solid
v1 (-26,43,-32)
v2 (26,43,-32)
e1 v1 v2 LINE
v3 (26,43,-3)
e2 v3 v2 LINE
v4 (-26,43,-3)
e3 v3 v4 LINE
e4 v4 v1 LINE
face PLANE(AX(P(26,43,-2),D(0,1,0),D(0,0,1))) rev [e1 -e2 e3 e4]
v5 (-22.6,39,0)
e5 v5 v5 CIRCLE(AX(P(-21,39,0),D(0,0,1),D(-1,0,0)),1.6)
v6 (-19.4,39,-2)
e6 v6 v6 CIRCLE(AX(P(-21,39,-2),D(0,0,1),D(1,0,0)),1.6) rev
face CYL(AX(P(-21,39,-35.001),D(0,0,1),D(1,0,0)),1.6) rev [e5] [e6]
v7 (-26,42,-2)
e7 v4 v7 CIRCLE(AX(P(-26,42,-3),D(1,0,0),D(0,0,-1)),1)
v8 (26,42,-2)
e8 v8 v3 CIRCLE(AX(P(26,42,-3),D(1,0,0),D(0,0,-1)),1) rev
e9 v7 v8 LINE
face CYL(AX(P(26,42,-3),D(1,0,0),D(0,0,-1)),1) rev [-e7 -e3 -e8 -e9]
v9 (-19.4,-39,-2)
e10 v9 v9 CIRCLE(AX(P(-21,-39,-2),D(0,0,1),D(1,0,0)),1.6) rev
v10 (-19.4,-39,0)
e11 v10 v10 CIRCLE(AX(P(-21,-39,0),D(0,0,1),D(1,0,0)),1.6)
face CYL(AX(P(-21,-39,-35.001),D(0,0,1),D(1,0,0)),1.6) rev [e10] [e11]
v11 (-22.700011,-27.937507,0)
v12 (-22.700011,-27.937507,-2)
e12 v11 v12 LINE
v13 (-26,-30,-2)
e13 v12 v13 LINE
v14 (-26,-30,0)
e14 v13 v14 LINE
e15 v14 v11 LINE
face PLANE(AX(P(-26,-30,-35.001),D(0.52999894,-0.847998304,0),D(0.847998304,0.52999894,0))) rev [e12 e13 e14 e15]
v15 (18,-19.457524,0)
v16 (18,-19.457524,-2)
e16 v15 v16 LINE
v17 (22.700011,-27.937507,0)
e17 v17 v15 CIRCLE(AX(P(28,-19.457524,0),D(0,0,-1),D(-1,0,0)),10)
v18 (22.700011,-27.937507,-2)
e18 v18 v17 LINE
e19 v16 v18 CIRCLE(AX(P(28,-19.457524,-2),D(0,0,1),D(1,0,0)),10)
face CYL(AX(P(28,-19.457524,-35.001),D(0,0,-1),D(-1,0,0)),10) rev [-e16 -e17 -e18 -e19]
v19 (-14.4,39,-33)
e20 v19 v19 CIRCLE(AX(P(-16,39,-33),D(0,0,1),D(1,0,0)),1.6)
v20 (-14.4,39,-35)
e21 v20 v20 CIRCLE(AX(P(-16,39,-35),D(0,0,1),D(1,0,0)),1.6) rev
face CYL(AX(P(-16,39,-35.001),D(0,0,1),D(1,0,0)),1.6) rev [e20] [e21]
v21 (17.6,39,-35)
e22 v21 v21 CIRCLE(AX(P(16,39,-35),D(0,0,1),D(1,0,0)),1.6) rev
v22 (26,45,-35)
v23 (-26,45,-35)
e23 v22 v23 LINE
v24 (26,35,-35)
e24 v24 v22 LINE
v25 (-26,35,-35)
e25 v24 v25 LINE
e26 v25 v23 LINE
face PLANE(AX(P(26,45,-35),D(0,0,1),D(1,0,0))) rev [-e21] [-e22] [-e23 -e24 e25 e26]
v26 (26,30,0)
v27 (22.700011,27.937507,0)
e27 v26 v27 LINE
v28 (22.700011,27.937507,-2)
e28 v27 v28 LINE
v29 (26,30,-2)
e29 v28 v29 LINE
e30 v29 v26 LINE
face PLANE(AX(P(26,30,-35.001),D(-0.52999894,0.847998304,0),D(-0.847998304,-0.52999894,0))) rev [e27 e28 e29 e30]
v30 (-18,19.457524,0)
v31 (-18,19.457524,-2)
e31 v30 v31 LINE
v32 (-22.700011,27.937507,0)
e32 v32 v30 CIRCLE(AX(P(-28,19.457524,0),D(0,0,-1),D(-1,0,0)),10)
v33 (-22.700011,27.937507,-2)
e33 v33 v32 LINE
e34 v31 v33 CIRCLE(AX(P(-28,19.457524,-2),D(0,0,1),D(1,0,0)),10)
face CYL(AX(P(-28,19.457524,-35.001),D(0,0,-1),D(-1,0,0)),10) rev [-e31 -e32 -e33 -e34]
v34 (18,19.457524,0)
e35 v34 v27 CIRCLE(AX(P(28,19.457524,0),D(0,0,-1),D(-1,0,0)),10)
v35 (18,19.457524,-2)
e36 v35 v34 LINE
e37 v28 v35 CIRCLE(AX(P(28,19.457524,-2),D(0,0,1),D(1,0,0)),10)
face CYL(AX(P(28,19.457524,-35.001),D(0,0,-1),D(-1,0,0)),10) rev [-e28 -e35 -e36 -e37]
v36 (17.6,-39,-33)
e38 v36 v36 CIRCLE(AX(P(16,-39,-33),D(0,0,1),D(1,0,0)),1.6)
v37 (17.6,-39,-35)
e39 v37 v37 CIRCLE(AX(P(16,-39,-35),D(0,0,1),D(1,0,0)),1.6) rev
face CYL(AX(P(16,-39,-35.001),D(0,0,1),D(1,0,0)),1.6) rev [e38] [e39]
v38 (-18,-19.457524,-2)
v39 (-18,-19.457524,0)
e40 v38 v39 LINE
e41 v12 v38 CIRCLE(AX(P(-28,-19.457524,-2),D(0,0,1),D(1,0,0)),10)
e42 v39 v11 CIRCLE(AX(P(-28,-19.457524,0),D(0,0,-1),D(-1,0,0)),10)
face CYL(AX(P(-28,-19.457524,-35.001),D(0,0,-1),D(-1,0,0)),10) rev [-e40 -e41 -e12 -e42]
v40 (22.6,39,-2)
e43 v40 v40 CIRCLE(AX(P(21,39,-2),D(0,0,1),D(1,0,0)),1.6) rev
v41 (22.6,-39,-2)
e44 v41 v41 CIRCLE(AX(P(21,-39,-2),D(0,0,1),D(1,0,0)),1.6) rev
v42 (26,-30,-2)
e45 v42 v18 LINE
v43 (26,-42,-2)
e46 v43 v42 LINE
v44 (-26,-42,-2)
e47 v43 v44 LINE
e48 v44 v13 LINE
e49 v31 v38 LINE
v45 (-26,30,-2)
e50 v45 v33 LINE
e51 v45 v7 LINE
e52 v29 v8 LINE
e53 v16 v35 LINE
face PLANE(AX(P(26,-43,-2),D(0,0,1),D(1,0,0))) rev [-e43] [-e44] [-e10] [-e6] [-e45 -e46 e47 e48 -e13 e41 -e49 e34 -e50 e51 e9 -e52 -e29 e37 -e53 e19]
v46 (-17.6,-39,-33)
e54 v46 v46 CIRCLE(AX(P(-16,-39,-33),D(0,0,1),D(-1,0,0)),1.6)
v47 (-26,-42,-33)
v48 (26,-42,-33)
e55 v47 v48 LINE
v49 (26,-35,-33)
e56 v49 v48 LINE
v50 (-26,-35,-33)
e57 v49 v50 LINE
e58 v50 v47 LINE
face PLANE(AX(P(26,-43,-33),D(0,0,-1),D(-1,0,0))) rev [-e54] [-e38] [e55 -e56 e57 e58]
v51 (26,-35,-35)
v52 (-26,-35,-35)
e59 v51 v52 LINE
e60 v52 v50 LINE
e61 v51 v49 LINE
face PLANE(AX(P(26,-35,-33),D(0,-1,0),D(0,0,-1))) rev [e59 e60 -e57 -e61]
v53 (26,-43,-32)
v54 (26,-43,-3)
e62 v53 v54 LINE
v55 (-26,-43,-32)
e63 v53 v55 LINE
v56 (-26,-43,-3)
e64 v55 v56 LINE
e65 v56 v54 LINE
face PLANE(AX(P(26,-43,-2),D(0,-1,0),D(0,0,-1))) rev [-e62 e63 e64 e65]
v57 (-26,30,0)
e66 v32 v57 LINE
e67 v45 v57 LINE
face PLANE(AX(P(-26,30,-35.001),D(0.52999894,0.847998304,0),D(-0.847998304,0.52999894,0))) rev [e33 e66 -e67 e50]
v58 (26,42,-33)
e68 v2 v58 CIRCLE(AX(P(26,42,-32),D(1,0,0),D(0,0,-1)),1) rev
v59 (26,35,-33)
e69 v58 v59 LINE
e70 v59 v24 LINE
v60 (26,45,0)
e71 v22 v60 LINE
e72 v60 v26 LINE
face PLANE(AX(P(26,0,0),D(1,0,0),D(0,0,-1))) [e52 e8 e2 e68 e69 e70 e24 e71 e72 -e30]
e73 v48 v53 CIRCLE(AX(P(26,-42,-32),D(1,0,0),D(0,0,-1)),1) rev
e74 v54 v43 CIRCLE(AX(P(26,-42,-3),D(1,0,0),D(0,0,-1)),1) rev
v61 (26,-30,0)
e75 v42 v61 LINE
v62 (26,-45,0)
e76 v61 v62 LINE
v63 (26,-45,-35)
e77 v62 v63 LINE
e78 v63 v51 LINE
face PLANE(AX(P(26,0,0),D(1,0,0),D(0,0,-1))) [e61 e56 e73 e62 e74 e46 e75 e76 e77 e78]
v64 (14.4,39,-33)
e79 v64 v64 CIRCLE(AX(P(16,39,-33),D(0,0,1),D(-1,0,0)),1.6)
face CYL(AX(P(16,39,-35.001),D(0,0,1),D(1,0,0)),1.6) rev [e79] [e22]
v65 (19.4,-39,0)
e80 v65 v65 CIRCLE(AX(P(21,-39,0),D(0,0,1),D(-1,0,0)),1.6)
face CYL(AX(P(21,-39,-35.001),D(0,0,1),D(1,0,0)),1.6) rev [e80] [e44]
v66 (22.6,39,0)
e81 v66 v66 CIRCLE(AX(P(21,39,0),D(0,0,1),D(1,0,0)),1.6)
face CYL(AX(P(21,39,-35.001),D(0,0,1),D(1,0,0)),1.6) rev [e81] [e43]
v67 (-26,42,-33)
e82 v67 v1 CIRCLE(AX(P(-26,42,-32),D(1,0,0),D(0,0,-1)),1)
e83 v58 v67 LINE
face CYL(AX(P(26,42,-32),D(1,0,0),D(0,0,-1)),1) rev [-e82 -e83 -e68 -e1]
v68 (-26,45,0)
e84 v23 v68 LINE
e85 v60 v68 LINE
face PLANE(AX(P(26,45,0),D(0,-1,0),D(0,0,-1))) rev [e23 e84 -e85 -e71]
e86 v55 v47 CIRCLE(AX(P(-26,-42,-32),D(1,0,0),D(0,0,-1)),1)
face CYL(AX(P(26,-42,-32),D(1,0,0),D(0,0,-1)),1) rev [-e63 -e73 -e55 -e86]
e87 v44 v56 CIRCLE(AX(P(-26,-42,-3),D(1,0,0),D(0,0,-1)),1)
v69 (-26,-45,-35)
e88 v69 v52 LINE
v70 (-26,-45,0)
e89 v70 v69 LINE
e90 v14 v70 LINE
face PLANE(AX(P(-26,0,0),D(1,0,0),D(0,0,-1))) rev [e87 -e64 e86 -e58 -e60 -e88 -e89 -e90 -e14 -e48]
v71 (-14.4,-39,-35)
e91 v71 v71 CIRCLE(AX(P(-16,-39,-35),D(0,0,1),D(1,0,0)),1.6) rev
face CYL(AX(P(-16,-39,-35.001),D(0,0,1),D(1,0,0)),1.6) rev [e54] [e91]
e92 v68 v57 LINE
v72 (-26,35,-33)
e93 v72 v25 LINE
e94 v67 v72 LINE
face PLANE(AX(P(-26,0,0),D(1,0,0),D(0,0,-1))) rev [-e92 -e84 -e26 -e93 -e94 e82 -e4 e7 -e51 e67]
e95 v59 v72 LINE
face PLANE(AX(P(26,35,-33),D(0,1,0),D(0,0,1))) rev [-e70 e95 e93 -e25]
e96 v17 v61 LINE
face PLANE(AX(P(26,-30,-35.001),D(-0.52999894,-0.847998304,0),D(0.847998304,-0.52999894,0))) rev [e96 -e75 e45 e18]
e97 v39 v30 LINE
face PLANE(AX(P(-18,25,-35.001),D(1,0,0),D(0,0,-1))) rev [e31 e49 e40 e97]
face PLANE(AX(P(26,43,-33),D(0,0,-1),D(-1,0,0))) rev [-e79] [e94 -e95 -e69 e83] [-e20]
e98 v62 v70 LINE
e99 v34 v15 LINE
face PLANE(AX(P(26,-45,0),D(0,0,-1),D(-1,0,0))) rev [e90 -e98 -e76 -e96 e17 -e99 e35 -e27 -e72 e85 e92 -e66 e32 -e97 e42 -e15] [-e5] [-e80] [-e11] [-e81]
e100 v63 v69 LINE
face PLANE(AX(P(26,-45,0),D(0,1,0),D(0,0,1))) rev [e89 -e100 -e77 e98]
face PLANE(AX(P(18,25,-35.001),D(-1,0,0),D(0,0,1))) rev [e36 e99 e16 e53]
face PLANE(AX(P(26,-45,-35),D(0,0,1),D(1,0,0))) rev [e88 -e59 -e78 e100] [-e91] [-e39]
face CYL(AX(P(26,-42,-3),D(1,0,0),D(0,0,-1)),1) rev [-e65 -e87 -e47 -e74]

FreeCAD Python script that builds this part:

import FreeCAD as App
import Part
import Sketcher
from FreeCAD import Vector
Q = App.Units.Quantity


def edges_at(feature, points):
    """Names of the edges that pass closest to the given points."""
    edges = feature.Shape.Edges
    near = lambda p: min(range(len(edges)), key=lambda i: edges[i].distToShape(Part.Vertex(*p))[0])
    return sorted({f"Edge{near(p) + 1}" for p in points})


def add_polygon(sketch, points):
    """Adds a closed chain of lines whose ends are joined by coincident constraints."""
    first, n = sketch.GeometryCount, len(points)
    for a, b in zip(points, points[1:] + points[:1]):
        sketch.addGeometry(Part.LineSegment(App.Vector(*a, 0), App.Vector(*b, 0)), False)
    for i in range(n):
        sketch.addConstraint(Sketcher.Constraint("Coincident", first + i, 2, first + (i + 1) % n, 1))

doc = App.newDocument("Part")
body = doc.addObject("PartDesign::Body", "Body")

# Sketch on YZ plane
sketch1 = body.newObject("Sketcher::SketchObject", "Sketch")
sketch1.AttachmentSupport = (doc.getObject("YZ_Plane"), [""])
sketch1.MapMode = "FlatFace"
add_polygon(sketch1, [(45, 0), (-45, 0), (-45, -35), (-35, -35), (-35, -33), (-43, -33), (-43, -2), (43, -2), (43, -33), (35, -33), (35, -35), (45, -35)])  # lines 0-11
sketch1.addConstraint([
    Sketcher.Constraint("Horizontal", 0),
    Sketcher.Constraint("Vertical", 1),
    Sketcher.Constraint("Horizontal", 2),
    Sketcher.Constraint("Vertical", 3),
    Sketcher.Constraint("Horizontal", 4),
    Sketcher.Constraint("Vertical", 5),
    Sketcher.Constraint("Horizontal", 6),
    Sketcher.Constraint("Vertical", 7),
    Sketcher.Constraint("Horizontal", 8),
    Sketcher.Constraint("Vertical", 9),
    Sketcher.Constraint("Horizontal", 10),
    Sketcher.Constraint("Vertical", 11),
    Sketcher.Constraint("Symmetric", 0, 2, 11, 2, -1, 1),
    Sketcher.Constraint("Symmetric", 4, 2, 7, 2, -2),
    Sketcher.Constraint("Symmetric", 2, 2, 9, 2, -2),
    Sketcher.Constraint("DistanceX", 0, 2, 0, 1, Q("90 mm")),
    Sketcher.Constraint("DistanceX", 2, 1, 2, 2, Q("10 mm")),
    Sketcher.Constraint("DistanceX", 4, 2, 4, 1, Q("8 mm")),
    Sketcher.Constraint("DistanceY", 1, 2, 1, 1, Q("35 mm")),
    Sketcher.Constraint("DistanceY", 3, 1, 3, 2, Q("2 mm")),
    Sketcher.Constraint("DistanceY", 5, 1, 5, 2, Q("31 mm")),
])
pad1 = body.newObject("PartDesign::Pad", "Pad")
pad1.Profile = sketch1
pad1.Length = 52
pad1.Midplane = True

# Sketch on XY plane
sketch2 = body.newObject("Sketcher::SketchObject", "Sketch001")
sketch2.AttachmentSupport = (doc.getObject("XY_Plane"), [""])
sketch2.MapMode = "FlatFace"
sketch2.addGeometry(Part.Circle(Vector(-21, -39, 0), Vector(0, 0, 1), 1.6), False)
sketch2.addConstraint([
    Sketcher.Constraint("Diameter", 0, Q("3.2 mm")),
    Sketcher.Constraint("DistanceX", 0, 3, -1, 1, Q("21 mm")),
    Sketcher.Constraint("DistanceY", 0, 3, -1, 1, Q("39 mm")),
])
pocket1 = body.newObject("PartDesign::Pocket", "Pocket")
pocket1.Profile = sketch2
pocket1.Type = "UpToFirst"

# Sketch on XY plane
sketch3 = body.newObject("Sketcher::SketchObject", "Sketch002")
sketch3.AttachmentSupport = (doc.getObject("XY_Plane"), [""])
sketch3.MapMode = "FlatFace"
sketch3.addGeometry(Part.Circle(Vector(-21, 39, 0), Vector(0, 0, 1), 1.6), False)
sketch3.addConstraint([
    Sketcher.Constraint("Diameter", 0, Q("3.2 mm")),
    Sketcher.Constraint("DistanceX", 0, 3, -1, 1, Q("21 mm")),
    Sketcher.Constraint("DistanceY", -1, 1, 0, 3, Q("39 mm")),
])
pocket2 = body.newObject("PartDesign::Pocket", "Pocket001")
pocket2.Profile = sketch3
pocket2.Type = "UpToFirst"

# Sketch on XY plane
sketch4 = body.newObject("Sketcher::SketchObject", "Sketch003")
sketch4.AttachmentSupport = (doc.getObject("XY_Plane"), [""])
sketch4.MapMode = "FlatFace"
sketch4.addGeometry(Part.Circle(Vector(21, 39, 0), Vector(0, 0, 1), 1.6), False)
sketch4.addConstraint([
    Sketcher.Constraint("Diameter", 0, Q("3.2 mm")),
    Sketcher.Constraint("DistanceX", -1, 1, 0, 3, Q("21 mm")),
    Sketcher.Constraint("DistanceY", -1, 1, 0, 3, Q("39 mm")),
])
pocket3 = body.newObject("PartDesign::Pocket", "Pocket002")
pocket3.Profile = sketch4
pocket3.Type = "UpToFirst"

# Sketch on XY plane
sketch5 = body.newObject("Sketcher::SketchObject", "Sketch004")
sketch5.AttachmentSupport = (doc.getObject("XY_Plane"), [""])
sketch5.MapMode = "FlatFace"
sketch5.addGeometry(Part.Circle(Vector(21, -39, 0), Vector(0, 0, 1), 1.6), False)
sketch5.addConstraint([
    Sketcher.Constraint("Diameter", 0, Q("3.2 mm")),
    Sketcher.Constraint("DistanceX", -1, 1, 0, 3, Q("21 mm")),
    Sketcher.Constraint("DistanceY", 0, 3, -1, 1, Q("39 mm")),
])
pocket4 = body.newObject("PartDesign::Pocket", "Pocket003")
pocket4.Profile = sketch5
pocket4.Type = "UpToFirst"

# Sketch on XY plane
sketch6 = body.newObject("Sketcher::SketchObject", "Sketch005")
sketch6.AttachmentSupport = (doc.getObject("XY_Plane"), [""])
sketch6.MapMode = "FlatFace"
sketch6.AttachmentOffset = App.Placement(Vector(0, 0, -33), App.Rotation())
sketch6.addGeometry(Part.Circle(Vector(16, -39, 0), Vector(0, 0, 1), 1.6), False)
sketch6.addConstraint([
    Sketcher.Constraint("Diameter", 0, Q("3.2 mm")),
    Sketcher.Constraint("DistanceX", -1, 1, 0, 3, Q("16 mm")),
    Sketcher.Constraint("DistanceY", 0, 3, -1, 1, Q("39 mm")),
])
pocket5 = body.newObject("PartDesign::Pocket", "Pocket004")
pocket5.Profile = sketch6
pocket5.Type = "UpToFirst"

# Sketch on XY plane
sketch7 = body.newObject("Sketcher::SketchObject", "Sketch006")
sketch7.AttachmentSupport = (doc.getObject("XY_Plane"), [""])
sketch7.MapMode = "FlatFace"
sketch7.AttachmentOffset = App.Placement(Vector(0, 0, -33), App.Rotation())
sketch7.addGeometry(Part.Circle(Vector(-16, -39, 0), Vector(0, 0, 1), 1.6), False)
sketch7.addConstraint([
    Sketcher.Constraint("Diameter", 0, Q("3.2 mm")),
    Sketcher.Constraint("DistanceX", 0, 3, -1, 1, Q("16 mm")),
    Sketcher.Constraint("DistanceY", 0, 3, -1, 1, Q("39 mm")),
])
pocket6 = body.newObject("PartDesign::Pocket", "Pocket005")
pocket6.Profile = sketch7
pocket6.Type = "UpToFirst"

# Sketch on XY plane
sketch8 = body.newObject("Sketcher::SketchObject", "Sketch007")
sketch8.AttachmentSupport = (doc.getObject("XY_Plane"), [""])
sketch8.MapMode = "FlatFace"
sketch8.AttachmentOffset = App.Placement(Vector(0, 0, -33), App.Rotation())
sketch8.addGeometry(Part.Circle(Vector(-16, 39, 0), Vector(0, 0, 1), 1.6), False)
sketch8.addConstraint([
    Sketcher.Constraint("Diameter", 0, Q("3.2 mm")),
    Sketcher.Constraint("DistanceX", 0, 3, -1, 1, Q("16 mm")),
    Sketcher.Constraint("DistanceY", -1, 1, 0, 3, Q("39 mm")),
])
pocket7 = body.newObject("PartDesign::Pocket", "Pocket006")
pocket7.Profile = sketch8
pocket7.Type = "UpToFirst"

# Sketch on XY plane
sketch9 = body.newObject("Sketcher::SketchObject", "Sketch008")
sketch9.AttachmentSupport = (doc.getObject("XY_Plane"), [""])
sketch9.MapMode = "FlatFace"
sketch9.AttachmentOffset = App.Placement(Vector(0, 0, -33), App.Rotation())
sketch9.addGeometry(Part.Circle(Vector(16, 39, 0), Vector(0, 0, 1), 1.6), False)
sketch9.addConstraint([
    Sketcher.Constraint("Diameter", 0, Q("3.2 mm")),
    Sketcher.Constraint("DistanceX", -1, 1, 0, 3, Q("16 mm")),
    Sketcher.Constraint("DistanceY", -1, 1, 0, 3, Q("39 mm")),
])
pocket8 = body.newObject("PartDesign::Pocket", "Pocket007")
pocket8.Profile = sketch9
pocket8.Type = "UpToFirst"
doc.recompute()

fillet = body.newObject("PartDesign::Fillet", "Fillet")
fillet.Base = (pocket8, edges_at(pocket8, [
    (0, 43, -33),
    (0, 43, -2),
    (0, -43, -2),
    (0, -43, -33),
]))
fillet.Radius = 1

# Sketch on XY plane
sketch10 = body.newObject("Sketcher::SketchObject", "Sketch009")
sketch10.AttachmentSupport = (doc.getObject("XY_Plane"), [""])
sketch10.MapMode = "FlatFace"
add_polygon(sketch10, [(-18, 25), (-26, 30), (-26, -30), (-18, -25)])  # lines 0-3
sketch10.addConstraint([
    Sketcher.Constraint("Vertical", 1),
    Sketcher.Constraint("Vertical", 3),
    Sketcher.Constraint("Equal", 0, 2),
    Sketcher.Constraint("DistanceY", 1, 2, 1, 1, Q("60 mm")),
    Sketcher.Constraint("DistanceY", 3, 1, 3, 2, Q("50 mm")),
    Sketcher.Constraint("DistanceX", 0, 2, -1, 1, Q("26 mm")),
    Sketcher.Constraint("DistanceY", -1, 1, 0, 2, Q("30 mm")),
    Sketcher.Constraint("DistanceX", 2, 2, -1, 1, Q("18 mm")),
])
pocket9 = body.newObject("PartDesign::Pocket", "Pocket008")
pocket9.Profile = sketch10
pocket9.Type = "UpToFirst"

# Sketch on XY plane
sketch11 = body.newObject("Sketcher::SketchObject", "Sketch010")
sketch11.AttachmentSupport = (doc.getObject("XY_Plane"), [""])
sketch11.MapMode = "FlatFace"
add_polygon(sketch11, [(18, -25), (26, -30), (26, 30), (18, 25)])  # lines 0-3
sketch11.addConstraint([
    Sketcher.Constraint("Vertical", 1),
    Sketcher.Constraint("Vertical", 3),
    Sketcher.Constraint("Equal", 0, 2),
    Sketcher.Constraint("DistanceY", 1, 1, 1, 2, Q("60 mm")),
    Sketcher.Constraint("DistanceY", 3, 2, 3, 1, Q("50 mm")),
    Sketcher.Constraint("DistanceX", -1, 1, 0, 2, Q("26 mm")),
    Sketcher.Constraint("DistanceY", 0, 2, -1, 1, Q("30 mm")),
    Sketcher.Constraint("DistanceX", -1, 1, 2, 2, Q("18 mm")),
])
pocket10 = body.newObject("PartDesign::Pocket", "Pocket009")
pocket10.Profile = sketch11
pocket10.Type = "UpToFirst"
doc.recompute()

fillet2 = body.newObject("PartDesign::Fillet", "Fillet001")
fillet2.Base = (pocket10, edges_at(pocket10, [
    (18, -25, -1),
    (18, 25, -1),
    (-18, 25, -1),
    (-18, -25, -1),
]))
fillet2.Radius = 10

doc.recompute()
